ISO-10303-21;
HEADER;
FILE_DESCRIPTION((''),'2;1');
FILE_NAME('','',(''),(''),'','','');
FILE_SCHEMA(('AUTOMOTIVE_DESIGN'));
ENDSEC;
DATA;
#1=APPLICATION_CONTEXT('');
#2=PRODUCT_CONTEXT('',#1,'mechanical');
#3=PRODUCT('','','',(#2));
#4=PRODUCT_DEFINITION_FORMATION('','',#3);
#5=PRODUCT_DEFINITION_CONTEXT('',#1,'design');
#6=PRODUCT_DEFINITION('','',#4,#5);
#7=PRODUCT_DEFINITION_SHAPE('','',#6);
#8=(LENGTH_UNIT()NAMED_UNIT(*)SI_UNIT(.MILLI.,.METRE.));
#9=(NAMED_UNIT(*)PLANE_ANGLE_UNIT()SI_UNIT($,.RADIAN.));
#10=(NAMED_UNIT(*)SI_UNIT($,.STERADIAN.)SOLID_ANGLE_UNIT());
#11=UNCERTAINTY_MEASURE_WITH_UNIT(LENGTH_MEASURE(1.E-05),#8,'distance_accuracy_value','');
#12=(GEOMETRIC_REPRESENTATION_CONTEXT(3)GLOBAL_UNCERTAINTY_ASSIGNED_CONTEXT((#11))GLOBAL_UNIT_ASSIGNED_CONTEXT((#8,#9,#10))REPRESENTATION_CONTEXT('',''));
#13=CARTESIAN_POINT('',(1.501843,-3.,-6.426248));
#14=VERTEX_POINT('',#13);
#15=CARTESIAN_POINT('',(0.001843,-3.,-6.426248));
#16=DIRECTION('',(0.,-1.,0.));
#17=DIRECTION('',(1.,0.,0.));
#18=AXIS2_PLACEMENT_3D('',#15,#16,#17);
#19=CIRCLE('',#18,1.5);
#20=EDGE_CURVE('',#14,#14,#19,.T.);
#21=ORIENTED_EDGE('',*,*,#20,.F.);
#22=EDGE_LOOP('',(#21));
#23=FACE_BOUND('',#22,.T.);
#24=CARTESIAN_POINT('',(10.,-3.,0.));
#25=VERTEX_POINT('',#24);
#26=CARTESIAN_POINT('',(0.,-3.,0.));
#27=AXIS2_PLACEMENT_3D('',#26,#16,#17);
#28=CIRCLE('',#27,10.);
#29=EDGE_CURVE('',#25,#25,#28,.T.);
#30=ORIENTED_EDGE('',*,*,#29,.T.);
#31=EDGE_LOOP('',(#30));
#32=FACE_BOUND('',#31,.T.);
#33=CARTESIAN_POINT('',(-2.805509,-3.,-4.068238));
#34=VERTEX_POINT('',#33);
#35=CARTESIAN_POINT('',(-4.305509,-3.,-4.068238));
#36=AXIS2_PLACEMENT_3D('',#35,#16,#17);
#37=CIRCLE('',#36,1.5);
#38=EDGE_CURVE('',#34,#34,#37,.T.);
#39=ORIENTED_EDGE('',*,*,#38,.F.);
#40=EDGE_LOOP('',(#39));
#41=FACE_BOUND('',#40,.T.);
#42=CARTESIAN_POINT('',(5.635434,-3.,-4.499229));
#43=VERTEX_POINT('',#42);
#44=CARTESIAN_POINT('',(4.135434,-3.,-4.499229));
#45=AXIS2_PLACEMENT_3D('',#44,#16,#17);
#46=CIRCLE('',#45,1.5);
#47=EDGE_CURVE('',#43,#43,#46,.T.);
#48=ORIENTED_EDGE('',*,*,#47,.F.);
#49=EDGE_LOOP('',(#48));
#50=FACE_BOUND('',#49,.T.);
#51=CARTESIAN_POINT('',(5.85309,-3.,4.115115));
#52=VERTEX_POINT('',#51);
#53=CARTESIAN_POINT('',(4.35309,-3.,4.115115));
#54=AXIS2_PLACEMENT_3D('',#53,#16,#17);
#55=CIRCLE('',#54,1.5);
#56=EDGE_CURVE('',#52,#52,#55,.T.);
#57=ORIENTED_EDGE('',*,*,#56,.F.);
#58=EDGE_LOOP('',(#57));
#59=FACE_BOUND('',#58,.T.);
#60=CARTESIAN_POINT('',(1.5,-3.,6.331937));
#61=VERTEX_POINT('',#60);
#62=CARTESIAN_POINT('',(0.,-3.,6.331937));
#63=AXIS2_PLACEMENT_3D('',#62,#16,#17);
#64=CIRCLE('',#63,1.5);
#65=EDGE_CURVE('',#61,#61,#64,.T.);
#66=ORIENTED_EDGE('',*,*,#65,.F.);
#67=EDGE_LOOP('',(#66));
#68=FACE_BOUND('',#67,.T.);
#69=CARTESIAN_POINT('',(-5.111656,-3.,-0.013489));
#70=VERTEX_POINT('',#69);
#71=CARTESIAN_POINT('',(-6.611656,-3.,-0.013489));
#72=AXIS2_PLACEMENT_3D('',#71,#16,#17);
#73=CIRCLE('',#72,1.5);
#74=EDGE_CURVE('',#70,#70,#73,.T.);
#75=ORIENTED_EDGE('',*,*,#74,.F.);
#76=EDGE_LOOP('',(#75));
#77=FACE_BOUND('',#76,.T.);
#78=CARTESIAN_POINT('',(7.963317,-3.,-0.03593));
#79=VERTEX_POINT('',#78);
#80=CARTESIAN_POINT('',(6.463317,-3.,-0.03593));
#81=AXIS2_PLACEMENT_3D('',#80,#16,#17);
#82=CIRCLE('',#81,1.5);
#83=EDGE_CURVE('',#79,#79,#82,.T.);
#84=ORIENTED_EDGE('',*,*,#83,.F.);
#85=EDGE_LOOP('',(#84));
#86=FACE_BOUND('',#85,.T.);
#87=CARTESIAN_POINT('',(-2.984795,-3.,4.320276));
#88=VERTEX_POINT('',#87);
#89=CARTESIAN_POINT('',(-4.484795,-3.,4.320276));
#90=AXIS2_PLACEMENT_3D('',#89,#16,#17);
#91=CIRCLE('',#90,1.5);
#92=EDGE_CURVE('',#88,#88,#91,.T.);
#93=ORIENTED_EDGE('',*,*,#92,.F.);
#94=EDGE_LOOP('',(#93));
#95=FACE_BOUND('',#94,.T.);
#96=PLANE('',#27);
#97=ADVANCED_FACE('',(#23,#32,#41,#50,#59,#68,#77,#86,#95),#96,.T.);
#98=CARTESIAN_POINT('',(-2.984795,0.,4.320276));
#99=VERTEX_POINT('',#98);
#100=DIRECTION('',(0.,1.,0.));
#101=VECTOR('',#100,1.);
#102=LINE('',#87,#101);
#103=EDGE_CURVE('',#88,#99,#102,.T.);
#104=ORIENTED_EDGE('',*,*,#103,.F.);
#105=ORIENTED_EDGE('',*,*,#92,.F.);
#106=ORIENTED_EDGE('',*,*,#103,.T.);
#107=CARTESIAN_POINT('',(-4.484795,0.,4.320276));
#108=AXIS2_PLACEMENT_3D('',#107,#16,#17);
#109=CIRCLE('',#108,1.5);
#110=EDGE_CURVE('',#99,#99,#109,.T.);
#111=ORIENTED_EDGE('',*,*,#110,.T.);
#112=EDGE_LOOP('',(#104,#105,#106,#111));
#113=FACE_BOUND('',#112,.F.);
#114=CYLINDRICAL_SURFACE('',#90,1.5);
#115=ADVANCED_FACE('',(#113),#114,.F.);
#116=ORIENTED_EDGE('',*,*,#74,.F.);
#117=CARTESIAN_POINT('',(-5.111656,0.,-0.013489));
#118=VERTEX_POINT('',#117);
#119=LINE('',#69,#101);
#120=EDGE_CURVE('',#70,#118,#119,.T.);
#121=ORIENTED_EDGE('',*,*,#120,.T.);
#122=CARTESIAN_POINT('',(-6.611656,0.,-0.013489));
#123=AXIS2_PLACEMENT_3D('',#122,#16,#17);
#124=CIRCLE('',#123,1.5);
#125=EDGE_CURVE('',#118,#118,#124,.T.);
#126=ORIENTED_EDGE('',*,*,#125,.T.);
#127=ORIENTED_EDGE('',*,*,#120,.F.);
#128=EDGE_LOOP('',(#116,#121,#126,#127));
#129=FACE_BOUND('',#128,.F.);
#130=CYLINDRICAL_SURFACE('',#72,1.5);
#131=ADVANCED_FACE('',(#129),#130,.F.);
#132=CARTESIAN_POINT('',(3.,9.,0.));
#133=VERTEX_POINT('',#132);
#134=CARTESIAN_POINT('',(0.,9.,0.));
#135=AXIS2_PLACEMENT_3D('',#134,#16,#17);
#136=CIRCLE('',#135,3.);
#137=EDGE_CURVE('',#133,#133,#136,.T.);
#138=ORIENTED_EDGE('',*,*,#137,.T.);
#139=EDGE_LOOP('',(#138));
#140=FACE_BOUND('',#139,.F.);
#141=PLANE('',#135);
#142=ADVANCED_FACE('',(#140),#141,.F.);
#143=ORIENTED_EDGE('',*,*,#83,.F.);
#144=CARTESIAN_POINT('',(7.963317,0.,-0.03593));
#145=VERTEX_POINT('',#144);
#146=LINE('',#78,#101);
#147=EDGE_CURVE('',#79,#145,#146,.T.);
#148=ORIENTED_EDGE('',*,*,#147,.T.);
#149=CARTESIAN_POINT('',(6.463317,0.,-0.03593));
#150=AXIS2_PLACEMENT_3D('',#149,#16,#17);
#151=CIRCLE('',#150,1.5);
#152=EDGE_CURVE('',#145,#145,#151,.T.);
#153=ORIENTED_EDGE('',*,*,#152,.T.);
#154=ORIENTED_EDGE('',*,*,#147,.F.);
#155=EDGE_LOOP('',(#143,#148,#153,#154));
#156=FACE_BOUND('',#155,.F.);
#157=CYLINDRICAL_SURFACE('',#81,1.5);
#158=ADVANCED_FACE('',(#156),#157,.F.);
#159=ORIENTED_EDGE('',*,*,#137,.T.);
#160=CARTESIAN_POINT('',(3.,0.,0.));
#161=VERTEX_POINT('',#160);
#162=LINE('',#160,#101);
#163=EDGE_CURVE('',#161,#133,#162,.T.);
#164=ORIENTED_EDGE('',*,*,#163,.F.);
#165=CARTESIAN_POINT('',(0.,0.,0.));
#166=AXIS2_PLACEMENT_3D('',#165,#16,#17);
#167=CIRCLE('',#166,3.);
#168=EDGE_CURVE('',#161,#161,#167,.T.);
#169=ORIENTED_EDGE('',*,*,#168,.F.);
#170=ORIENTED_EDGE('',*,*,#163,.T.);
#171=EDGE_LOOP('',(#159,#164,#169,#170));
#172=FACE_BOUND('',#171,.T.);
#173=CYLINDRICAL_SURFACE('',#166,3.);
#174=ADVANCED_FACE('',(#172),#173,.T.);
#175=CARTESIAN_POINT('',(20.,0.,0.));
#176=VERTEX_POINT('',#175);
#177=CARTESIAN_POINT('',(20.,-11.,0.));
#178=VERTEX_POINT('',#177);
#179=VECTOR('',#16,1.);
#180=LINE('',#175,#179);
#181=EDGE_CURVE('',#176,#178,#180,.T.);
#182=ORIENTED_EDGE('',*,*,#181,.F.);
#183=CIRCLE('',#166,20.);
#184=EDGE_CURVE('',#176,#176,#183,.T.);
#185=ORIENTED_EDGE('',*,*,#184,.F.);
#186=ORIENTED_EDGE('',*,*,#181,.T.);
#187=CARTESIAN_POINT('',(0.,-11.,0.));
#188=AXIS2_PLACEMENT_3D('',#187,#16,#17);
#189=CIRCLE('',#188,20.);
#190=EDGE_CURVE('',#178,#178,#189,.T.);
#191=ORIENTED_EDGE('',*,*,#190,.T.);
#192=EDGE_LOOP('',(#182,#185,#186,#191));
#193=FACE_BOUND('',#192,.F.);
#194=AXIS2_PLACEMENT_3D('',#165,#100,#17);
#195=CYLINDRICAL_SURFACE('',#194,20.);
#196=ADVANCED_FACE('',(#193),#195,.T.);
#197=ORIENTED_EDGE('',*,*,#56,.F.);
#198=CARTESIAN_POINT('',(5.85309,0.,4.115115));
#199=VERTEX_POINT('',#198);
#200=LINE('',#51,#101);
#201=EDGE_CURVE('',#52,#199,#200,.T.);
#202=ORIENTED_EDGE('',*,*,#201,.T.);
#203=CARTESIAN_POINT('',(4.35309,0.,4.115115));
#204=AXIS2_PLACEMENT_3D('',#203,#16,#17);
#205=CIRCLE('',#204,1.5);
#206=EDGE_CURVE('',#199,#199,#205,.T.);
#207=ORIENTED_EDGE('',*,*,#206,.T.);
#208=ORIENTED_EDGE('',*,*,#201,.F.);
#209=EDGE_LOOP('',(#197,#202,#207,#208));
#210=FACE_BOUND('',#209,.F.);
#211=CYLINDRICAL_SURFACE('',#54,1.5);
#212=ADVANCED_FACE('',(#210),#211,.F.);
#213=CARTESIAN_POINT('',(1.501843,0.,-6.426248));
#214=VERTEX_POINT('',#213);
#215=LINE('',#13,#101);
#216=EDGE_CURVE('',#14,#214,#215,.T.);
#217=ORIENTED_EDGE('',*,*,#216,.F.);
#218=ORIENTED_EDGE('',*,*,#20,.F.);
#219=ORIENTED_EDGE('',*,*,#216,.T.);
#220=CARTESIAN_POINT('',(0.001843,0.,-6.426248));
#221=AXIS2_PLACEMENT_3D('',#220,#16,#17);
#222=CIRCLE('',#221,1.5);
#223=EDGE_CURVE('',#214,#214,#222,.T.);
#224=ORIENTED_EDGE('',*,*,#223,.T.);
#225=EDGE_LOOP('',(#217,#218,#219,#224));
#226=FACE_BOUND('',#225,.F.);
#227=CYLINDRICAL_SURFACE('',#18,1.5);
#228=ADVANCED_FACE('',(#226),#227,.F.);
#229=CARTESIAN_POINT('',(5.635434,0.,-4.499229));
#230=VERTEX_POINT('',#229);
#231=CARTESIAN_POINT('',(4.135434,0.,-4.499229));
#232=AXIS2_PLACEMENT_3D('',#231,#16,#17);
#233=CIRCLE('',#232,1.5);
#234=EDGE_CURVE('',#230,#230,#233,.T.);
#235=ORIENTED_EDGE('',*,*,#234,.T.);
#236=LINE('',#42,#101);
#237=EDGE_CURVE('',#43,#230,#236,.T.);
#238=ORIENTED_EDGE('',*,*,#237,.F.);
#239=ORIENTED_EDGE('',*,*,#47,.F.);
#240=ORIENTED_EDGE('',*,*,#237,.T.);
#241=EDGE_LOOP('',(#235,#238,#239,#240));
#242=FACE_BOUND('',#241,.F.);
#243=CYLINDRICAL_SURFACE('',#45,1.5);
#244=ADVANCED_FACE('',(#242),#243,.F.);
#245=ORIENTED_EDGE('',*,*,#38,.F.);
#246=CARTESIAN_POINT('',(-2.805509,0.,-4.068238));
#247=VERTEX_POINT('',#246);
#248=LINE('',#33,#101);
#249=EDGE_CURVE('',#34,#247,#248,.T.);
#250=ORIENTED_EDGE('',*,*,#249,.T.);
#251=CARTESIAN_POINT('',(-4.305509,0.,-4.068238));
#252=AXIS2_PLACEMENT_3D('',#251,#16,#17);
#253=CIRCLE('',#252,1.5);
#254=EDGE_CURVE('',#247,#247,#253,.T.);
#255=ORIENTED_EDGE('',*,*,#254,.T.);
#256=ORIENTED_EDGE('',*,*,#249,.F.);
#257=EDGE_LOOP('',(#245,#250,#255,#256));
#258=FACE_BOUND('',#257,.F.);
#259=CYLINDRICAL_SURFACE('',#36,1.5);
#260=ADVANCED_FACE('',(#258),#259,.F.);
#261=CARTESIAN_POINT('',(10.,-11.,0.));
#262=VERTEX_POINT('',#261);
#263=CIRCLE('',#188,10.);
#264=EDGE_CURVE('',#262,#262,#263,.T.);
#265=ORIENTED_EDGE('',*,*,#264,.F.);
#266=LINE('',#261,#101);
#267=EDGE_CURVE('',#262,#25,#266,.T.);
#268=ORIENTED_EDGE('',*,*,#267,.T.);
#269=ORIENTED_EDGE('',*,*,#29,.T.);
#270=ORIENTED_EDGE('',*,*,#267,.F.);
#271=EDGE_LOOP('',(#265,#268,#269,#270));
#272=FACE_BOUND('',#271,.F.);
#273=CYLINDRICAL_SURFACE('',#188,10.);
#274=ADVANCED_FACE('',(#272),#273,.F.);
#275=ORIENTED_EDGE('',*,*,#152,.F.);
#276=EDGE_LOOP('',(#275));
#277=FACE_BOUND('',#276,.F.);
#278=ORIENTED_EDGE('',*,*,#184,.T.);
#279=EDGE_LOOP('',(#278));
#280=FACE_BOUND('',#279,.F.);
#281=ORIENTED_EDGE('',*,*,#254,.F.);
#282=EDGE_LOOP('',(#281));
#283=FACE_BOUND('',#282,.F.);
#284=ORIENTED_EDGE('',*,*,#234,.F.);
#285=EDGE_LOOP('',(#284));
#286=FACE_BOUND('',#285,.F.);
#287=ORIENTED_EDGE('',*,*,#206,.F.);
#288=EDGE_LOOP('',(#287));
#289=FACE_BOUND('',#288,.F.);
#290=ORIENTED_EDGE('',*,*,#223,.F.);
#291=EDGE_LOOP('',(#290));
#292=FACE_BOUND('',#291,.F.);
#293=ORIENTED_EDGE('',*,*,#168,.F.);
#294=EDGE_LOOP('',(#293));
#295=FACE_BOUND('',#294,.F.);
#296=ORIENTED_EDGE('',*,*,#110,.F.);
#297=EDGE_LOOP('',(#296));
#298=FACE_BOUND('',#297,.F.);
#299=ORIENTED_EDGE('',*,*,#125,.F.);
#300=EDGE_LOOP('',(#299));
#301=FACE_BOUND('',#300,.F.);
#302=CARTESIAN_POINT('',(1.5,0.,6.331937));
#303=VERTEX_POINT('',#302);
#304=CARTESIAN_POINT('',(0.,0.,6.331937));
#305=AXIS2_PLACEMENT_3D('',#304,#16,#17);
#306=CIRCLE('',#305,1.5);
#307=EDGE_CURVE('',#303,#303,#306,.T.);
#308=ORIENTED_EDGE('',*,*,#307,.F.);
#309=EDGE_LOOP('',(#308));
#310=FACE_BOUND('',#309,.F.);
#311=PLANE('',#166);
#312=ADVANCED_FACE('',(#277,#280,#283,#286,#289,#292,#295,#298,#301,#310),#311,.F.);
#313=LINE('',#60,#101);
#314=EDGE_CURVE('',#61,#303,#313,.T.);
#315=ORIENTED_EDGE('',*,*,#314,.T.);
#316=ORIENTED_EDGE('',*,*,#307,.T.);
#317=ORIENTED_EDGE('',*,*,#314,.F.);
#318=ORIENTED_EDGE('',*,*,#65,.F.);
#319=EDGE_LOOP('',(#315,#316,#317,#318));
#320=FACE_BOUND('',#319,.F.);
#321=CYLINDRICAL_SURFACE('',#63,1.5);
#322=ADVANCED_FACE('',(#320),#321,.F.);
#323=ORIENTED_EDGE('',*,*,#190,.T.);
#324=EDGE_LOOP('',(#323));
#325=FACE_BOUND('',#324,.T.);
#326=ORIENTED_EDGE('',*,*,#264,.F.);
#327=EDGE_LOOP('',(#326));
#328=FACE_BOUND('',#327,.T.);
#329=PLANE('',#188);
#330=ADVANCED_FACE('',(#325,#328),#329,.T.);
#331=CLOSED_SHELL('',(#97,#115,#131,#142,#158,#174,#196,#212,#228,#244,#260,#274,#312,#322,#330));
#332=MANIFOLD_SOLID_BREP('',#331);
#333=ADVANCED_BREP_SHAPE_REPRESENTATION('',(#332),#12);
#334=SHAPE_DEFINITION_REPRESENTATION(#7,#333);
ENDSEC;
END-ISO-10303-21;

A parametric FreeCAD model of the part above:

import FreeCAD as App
import Part
import Sketcher

doc = App.newDocument("Part")
body = doc.addObject("PartDesign::Body", "Body")

# Sketch on XZ plane
sketch1 = body.newObject("Sketcher::SketchObject", "Sketch")
sketch1.AttachmentSupport = (doc.getObject("XZ_Plane"), [""])
sketch1.MapMode = "FlatFace"
sketch1.addGeometry(Part.Circle(App.Vector(0, 0, 0), App.Vector(0, 0, 1), 3), False)
sketch1.addConstraint([
    Sketcher.Constraint("Coincident", 0, 3, -1, 1),
    Sketcher.Constraint("Diameter", 0, 6.0),
])
pad1 = body.newObject("PartDesign::Pad", "Pad")
pad1.Profile = sketch1
pad1.Length = 9
pad1.Reversed = True

# Sketch on XZ plane
sketch2 = body.newObject("Sketcher::SketchObject", "Sketch001")
sketch2.AttachmentSupport = (doc.getObject("XZ_Plane"), [""])
sketch2.MapMode = "FlatFace"
sketch2.addGeometry(Part.Circle(App.Vector(0, 0, 0), App.Vector(0, 0, 1), 3), False)
sketch2.addConstraint([
    Sketcher.Constraint("Coincident", 0, 3, -1, 1),
    Sketcher.Constraint("Diameter", 0, 6.0),
])
pad2 = body.newObject("PartDesign::Pad", "Pad001")
pad2.Profile = sketch2
pad2.Length = 9.5

# Sketch on XZ plane
sketch3 = body.newObject("Sketcher::SketchObject", "Sketch002")
sketch3.AttachmentSupport = (doc.getObject("XZ_Plane"), [""])
sketch3.MapMode = "FlatFace"
sketch3.addGeometry(Part.Circle(App.Vector(0, 0, 0), App.Vector(0, 0, 1), 20), False)
sketch3.addConstraint([
    Sketcher.Constraint("Coincident", 0, 3, -1, 1),
    Sketcher.Constraint("Diameter", 0, 40.0),
])
pad3 = body.newObject("PartDesign::Pad", "Pad002")
pad3.Profile = sketch3
pad3.Length = 11

# Sketch on XZ plane
sketch4 = body.newObject("Sketcher::SketchObject", "Sketch003")
sketch4.AttachmentSupport = (doc.getObject("XZ_Plane"), [""])
sketch4.MapMode = "FlatFace"
sketch4.AttachmentOffset = App.Placement(App.Vector(0, 0, 11), App.Rotation())
sketch4.addGeometry(Part.Circle(App.Vector(0, 0, 0), App.Vector(0, 0, 1), 10), False)
sketch4.addConstraint([
    Sketcher.Constraint("Coincident", 0, 3, -1, 1),
    Sketcher.Constraint("Diameter", 0, 20.0),
])
pocket1 = body.newObject("PartDesign::Pocket", "Pocket")
pocket1.Profile = sketch4
pocket1.Length = 8

# Sketch on XZ plane
sketch5 = body.newObject("Sketcher::SketchObject", "Sketch004")
sketch5.AttachmentSupport = (doc.getObject("XZ_Plane"), [""])
sketch5.MapMode = "FlatFace"
sketch5.AttachmentOffset = App.Placement(App.Vector(0, 0, 3), App.Rotation())
sketch5.addGeometry([
    Part.Circle(App.Vector(6.463317, -0.03593, 0), App.Vector(0, 0, 1), 1.5),  # 0
    Part.Circle(App.Vector(4.35309, 4.115115, 0), App.Vector(0, 0, 1), 1.5),  # 1
    Part.Circle(App.Vector(0, 6.331937, 0), App.Vector(0, 0, 1), 1.5),  # 2
    Part.Circle(App.Vector(-4.484795, 4.320276, 0), App.Vector(0, 0, 1), 1.5),  # 3
    Part.Circle(App.Vector(-6.611656, -0.013489, 0), App.Vector(0, 0, 1), 1.5),  # 4
    Part.Circle(App.Vector(-4.305509, -4.068238, 0), App.Vector(0, 0, 1), 1.5),  # 5
    Part.Circle(App.Vector(0.001843, -6.426248, 0), App.Vector(0, 0, 1), 1.5),  # 6
    Part.Circle(App.Vector(4.135434, -4.499229, 0), App.Vector(0, 0, 1), 1.5),  # 7
], False)
sketch5.addConstraint([
    Sketcher.Constraint("Equal", 0, 1),
    Sketcher.Constraint("Equal", 1, 2),
    Sketcher.Constraint("Equal", 2, 3),
    Sketcher.Constraint("Equal", 3, 4),
    Sketcher.Constraint("Equal", 4, 5),
    Sketcher.Constraint("Equal", 5, 6),
    Sketcher.Constraint("Equal", 6, 7),
    Sketcher.Constraint("PointOnObject", 2, 3, -2),
    Sketcher.Constraint("Diameter", 0, 3.0),
    Sketcher.Constraint("DistanceX", 5, 3, 1, 3, 8.658599),
    Sketcher.Constraint("DistanceX", 4, 3, 6, 3, 6.613499),
    Sketcher.Constraint("DistanceY", 7, 3, 0, 3, 4.463299),
    Sketcher.Constraint("DistanceY", 0, 3, -1, 1, 0.03593),
    Sketcher.Constraint("DistanceX", -1, 1, 1, 3, 4.35309),
    Sketcher.Constraint("DistanceY", 4, 3, -1, 1, 0.013489),
    Sketcher.Constraint("DistanceY", 6, 3, -1, 1, 6.426248),
    Sketcher.Constraint("DistanceY", 1, 3, 2, 3, 2.216822),
    Sketcher.Constraint("DistanceY", 3, 3, 2, 3, 2.011661),
    Sketcher.Constraint("DistanceX", 4, 3, 3, 3, 2.126861),
    Sketcher.Constraint("DistanceY", 5, 3, 4, 3, 4.054749),
    Sketcher.Constraint("DistanceX", 6, 3, 7, 3, 4.133591),
    Sketcher.Constraint("DistanceX", -1, 1, 0, 3, 6.463317),
    Sketcher.Constraint("DistanceY", -1, 1, 1, 3, 4.115115),
    Sketcher.Constraint("DistanceX", 3, 3, -1, 1, 4.484795),
])
pocket2 = body.newObject("PartDesign::Pocket", "Pocket001")
pocket2.Profile = sketch5
pocket2.Length = 8

doc.recompute()
